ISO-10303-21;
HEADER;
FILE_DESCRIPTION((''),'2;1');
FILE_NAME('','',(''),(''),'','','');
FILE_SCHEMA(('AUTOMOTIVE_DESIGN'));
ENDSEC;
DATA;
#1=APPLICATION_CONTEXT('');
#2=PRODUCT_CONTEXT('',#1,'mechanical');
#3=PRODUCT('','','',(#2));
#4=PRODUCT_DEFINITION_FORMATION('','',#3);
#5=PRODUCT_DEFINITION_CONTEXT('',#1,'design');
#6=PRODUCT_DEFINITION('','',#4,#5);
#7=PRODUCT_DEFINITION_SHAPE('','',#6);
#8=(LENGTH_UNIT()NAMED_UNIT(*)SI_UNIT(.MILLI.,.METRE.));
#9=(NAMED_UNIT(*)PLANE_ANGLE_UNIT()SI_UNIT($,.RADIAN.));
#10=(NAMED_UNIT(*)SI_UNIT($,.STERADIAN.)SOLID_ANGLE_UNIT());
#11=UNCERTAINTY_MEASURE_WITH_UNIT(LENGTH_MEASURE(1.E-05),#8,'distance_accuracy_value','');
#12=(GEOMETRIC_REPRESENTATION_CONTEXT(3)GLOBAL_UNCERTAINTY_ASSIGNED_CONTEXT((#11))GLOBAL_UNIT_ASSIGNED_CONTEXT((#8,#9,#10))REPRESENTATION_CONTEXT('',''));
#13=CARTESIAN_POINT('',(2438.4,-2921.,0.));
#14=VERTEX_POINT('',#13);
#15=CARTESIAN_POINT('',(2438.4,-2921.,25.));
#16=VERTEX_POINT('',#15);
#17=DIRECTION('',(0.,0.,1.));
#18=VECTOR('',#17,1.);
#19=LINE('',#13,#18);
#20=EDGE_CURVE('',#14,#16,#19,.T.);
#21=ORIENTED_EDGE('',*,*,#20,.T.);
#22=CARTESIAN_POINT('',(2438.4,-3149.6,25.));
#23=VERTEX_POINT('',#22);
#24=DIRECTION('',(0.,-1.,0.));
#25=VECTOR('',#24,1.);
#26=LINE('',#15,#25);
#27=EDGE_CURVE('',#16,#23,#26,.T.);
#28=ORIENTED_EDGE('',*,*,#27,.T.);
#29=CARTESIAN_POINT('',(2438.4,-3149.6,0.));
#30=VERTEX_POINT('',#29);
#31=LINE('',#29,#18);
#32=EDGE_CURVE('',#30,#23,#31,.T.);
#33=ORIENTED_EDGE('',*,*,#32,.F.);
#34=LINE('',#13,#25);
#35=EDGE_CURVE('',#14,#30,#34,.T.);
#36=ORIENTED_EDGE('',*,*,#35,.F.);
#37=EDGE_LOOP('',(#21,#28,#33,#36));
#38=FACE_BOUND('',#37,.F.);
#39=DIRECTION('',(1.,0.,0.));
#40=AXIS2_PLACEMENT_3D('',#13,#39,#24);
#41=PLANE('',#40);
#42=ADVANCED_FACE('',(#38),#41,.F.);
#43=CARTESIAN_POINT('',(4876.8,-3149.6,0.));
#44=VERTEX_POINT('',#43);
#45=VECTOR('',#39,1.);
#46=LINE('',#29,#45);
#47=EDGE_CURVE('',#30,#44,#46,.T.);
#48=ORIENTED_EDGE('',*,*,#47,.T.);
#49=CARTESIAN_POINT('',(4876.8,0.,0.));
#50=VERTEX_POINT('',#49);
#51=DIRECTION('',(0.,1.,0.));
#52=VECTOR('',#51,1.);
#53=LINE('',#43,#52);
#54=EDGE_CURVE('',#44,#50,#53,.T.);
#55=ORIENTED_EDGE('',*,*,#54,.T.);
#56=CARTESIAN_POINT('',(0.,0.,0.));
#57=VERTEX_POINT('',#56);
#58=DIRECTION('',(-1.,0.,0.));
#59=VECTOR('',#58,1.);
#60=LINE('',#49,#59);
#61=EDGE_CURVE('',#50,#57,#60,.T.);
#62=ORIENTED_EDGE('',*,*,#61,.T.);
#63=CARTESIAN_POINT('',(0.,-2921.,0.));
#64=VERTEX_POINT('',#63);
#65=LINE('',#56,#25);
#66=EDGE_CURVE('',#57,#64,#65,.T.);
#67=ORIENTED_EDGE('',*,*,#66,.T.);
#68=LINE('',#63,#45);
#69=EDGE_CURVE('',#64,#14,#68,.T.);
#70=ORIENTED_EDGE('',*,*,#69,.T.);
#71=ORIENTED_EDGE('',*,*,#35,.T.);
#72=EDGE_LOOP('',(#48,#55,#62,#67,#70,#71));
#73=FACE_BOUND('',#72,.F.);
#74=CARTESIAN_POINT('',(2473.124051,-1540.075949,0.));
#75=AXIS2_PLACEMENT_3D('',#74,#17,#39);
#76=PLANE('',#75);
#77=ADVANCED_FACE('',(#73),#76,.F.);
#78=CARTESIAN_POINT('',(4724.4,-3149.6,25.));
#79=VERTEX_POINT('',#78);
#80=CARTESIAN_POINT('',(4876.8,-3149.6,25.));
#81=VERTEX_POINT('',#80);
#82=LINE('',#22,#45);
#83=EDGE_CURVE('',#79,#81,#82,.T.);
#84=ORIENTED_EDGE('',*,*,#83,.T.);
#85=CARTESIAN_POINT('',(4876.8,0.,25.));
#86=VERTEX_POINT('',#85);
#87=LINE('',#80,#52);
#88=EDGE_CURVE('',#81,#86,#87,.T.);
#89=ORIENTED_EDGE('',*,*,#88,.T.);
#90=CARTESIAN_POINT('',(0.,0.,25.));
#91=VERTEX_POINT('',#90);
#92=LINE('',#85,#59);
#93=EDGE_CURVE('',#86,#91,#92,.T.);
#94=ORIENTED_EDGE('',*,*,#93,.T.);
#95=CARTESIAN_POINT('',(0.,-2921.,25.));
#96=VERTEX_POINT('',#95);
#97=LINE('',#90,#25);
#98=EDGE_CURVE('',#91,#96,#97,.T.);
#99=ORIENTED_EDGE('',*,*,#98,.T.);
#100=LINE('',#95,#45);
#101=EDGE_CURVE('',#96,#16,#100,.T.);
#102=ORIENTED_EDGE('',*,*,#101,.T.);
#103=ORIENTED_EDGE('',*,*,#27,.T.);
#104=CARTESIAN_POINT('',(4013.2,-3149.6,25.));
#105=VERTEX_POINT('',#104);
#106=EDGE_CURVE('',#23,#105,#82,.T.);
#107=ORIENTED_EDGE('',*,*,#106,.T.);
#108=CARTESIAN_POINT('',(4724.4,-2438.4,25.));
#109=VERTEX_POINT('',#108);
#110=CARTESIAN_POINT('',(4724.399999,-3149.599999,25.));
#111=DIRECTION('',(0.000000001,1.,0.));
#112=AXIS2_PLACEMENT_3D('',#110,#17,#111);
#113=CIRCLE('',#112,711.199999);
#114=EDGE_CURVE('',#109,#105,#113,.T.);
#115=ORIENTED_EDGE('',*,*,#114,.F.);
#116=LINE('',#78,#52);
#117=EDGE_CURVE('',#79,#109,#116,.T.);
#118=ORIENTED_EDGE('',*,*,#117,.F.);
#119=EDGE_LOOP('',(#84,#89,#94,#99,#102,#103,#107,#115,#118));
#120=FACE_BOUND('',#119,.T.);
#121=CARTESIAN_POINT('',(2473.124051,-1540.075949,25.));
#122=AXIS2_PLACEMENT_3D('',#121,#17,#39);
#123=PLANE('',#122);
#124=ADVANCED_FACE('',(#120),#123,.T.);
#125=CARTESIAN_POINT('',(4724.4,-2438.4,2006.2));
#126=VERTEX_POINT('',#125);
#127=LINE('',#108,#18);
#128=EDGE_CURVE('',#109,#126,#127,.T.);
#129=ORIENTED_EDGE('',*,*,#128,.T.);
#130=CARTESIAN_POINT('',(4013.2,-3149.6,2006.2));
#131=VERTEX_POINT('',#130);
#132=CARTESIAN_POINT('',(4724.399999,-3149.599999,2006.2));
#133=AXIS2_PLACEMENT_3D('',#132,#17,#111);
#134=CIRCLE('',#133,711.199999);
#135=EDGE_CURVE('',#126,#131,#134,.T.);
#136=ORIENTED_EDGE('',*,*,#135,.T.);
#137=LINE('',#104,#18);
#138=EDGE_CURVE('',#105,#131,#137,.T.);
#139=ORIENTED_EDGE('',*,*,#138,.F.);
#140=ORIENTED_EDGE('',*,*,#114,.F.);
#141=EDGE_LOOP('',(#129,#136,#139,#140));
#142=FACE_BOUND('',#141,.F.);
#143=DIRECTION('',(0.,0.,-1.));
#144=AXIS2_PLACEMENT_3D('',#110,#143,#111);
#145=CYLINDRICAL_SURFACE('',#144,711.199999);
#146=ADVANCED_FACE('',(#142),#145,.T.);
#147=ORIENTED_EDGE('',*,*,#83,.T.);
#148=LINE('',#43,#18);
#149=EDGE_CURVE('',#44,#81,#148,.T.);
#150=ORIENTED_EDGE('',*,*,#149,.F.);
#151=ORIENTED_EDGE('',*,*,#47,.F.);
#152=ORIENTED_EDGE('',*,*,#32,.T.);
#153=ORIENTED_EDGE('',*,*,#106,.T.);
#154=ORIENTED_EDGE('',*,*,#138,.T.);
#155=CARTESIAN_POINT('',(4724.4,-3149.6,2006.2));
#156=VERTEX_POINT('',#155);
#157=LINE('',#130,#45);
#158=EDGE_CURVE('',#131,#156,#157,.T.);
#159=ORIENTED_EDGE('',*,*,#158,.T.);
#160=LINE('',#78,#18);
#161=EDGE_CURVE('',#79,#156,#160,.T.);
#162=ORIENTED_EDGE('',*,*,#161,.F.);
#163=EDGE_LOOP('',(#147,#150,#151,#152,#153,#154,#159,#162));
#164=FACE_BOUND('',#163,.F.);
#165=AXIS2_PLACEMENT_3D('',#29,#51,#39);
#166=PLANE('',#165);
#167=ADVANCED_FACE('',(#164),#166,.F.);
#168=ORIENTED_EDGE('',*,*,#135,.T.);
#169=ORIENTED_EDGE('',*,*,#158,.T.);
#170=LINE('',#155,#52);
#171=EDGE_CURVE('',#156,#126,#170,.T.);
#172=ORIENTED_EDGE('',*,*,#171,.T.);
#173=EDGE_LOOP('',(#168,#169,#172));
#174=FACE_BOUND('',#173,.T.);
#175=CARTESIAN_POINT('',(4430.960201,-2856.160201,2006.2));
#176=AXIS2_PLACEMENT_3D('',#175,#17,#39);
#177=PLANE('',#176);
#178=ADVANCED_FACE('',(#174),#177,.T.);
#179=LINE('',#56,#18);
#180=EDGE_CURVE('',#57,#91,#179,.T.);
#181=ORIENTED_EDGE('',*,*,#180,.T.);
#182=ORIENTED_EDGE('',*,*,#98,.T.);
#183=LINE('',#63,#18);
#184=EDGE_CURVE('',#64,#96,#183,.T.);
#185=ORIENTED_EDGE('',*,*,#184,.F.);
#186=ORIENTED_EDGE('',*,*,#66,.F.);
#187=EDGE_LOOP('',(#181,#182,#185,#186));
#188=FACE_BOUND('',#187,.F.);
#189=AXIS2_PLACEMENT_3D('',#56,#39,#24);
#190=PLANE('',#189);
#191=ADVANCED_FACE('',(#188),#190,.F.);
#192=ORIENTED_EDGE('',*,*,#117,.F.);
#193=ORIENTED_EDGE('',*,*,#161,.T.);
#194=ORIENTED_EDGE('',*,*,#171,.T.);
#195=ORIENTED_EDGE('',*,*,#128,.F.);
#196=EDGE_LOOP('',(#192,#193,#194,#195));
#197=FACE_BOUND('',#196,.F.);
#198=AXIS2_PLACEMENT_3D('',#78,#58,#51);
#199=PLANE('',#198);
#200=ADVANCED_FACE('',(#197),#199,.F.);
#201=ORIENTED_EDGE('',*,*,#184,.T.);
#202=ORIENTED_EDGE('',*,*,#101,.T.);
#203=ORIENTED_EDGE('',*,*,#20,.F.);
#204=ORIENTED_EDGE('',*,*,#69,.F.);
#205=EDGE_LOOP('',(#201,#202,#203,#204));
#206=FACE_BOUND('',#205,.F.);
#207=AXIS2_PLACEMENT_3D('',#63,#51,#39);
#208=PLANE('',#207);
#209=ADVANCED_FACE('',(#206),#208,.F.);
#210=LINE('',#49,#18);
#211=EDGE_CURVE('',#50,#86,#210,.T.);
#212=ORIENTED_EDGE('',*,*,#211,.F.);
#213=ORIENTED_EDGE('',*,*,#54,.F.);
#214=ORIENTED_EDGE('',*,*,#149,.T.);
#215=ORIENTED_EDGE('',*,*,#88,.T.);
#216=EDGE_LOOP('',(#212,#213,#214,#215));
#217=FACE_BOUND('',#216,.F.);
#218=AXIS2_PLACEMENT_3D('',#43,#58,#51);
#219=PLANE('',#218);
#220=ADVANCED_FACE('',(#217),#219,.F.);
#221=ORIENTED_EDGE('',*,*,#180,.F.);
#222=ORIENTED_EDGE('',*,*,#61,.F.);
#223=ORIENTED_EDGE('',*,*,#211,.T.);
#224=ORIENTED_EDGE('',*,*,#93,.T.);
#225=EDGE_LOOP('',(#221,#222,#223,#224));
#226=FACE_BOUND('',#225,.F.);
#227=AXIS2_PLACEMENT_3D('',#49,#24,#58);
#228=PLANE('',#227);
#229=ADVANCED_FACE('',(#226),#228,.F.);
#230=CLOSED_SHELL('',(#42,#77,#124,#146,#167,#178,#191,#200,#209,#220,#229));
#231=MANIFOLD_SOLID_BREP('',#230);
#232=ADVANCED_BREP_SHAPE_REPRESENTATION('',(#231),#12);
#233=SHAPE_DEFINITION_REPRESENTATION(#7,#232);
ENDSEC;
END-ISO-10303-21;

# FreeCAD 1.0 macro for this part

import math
import FreeCAD as App
import Part
import Sketcher
from FreeCAD import Vector
Q = App.Units.Quantity


def add_polygon(sketch, points):
    """Adds a closed chain of lines whose ends are joined by coincident constraints."""
    first, n = sketch.GeometryCount, len(points)
    for a, b in zip(points, points[1:] + points[:1]):
        sketch.addGeometry(Part.LineSegment(App.Vector(*a, 0), App.Vector(*b, 0)), False)
    for i in range(n):
        sketch.addConstraint(Sketcher.Constraint("Coincident", first + i, 2, first + (i + 1) % n, 1))

doc = App.newDocument("Part")
body = doc.addObject("PartDesign::Body", "Body")

# Sketch on XY plane
sketch1 = doc.addObject("Sketcher::SketchObject", "Sketch")
body.addObject(sketch1)
sketch1.AttachmentSupport = (doc.XY_Plane, [""])
sketch1.MapMode = "FlatFace"
add_polygon(sketch1, [(4877, 0), (0, 0), (0, -2921), (2438, -2921), (2438, -3150), (4877, -3150)])  # lines 0-5
sketch1.addConstraint([
    Sketcher.Constraint("Horizontal", 0),
    Sketcher.Constraint("Vertical", 1),
    Sketcher.Constraint("Horizontal", 2),
    Sketcher.Constraint("Vertical", 3),
    Sketcher.Constraint("Horizontal", 4),
    Sketcher.Constraint("Vertical", 5),
    Sketcher.Constraint("Coincident", 0, 2, -1, 1),
    Sketcher.Constraint("Equal", 2, 4),
    Sketcher.Constraint("DistanceX", 0, 2, 0, 1, Q("192 in")),
    Sketcher.Constraint("DistanceY", 1, 2, 1, 1, Q("115 in")),
    Sketcher.Constraint("DistanceY", 3, 2, 3, 1, Q("9 in")),
])
pad1 = doc.addObject("PartDesign::Pad", "Pad")
body.addObject(pad1)
pad1.Profile = sketch1
pad1.Length = 25

# Sketch on XY plane
sketch2 = doc.addObject("Sketcher::SketchObject", "Sketch001")
body.addObject(sketch2)
sketch2.AttachmentSupport = (doc.XY_Plane, [""])
sketch2.MapMode = "FlatFace"
sketch2.AttachmentOffset = App.Placement(Vector(0, 0, 25), App.Rotation())
sketch2.addGeometry([
    Part.LineSegment(Vector(4013, -3150, 0), Vector(4724, -3150, 0)),
    Part.LineSegment(Vector(4724, -3150, 0), Vector(4724, -2438, 0)),
    Part.ArcOfCircle(Part.Circle(Vector(4724, -3150, 0), Vector(0, 0, 1), 711), math.radians(90), math.radians(180)),
], False)
sketch2.addConstraint([
    Sketcher.Constraint("Coincident", 0, 2, 1, 1),
    Sketcher.Constraint("Coincident", 1, 2, 2, 1),
    Sketcher.Constraint("Coincident", 2, 2, 0, 1),
    Sketcher.Constraint("Horizontal", 0),
    Sketcher.Constraint("Vertical", 1),
    Sketcher.Constraint("Coincident", 0, 2, 2, 3),
    Sketcher.Constraint("Radius", 2, Q("28 in")),
    Sketcher.Constraint("DistanceX", -1, 1, 2, 3, Q("186 in")),
    Sketcher.Constraint("DistanceY", 2, 3, -1, 1, Q("124 in")),
])
pad2 = doc.addObject("PartDesign::Pad", "Pad001")
body.addObject(pad2)
pad2.Profile = sketch2
pad2.Length = Q("78 in")

doc.recompute()
